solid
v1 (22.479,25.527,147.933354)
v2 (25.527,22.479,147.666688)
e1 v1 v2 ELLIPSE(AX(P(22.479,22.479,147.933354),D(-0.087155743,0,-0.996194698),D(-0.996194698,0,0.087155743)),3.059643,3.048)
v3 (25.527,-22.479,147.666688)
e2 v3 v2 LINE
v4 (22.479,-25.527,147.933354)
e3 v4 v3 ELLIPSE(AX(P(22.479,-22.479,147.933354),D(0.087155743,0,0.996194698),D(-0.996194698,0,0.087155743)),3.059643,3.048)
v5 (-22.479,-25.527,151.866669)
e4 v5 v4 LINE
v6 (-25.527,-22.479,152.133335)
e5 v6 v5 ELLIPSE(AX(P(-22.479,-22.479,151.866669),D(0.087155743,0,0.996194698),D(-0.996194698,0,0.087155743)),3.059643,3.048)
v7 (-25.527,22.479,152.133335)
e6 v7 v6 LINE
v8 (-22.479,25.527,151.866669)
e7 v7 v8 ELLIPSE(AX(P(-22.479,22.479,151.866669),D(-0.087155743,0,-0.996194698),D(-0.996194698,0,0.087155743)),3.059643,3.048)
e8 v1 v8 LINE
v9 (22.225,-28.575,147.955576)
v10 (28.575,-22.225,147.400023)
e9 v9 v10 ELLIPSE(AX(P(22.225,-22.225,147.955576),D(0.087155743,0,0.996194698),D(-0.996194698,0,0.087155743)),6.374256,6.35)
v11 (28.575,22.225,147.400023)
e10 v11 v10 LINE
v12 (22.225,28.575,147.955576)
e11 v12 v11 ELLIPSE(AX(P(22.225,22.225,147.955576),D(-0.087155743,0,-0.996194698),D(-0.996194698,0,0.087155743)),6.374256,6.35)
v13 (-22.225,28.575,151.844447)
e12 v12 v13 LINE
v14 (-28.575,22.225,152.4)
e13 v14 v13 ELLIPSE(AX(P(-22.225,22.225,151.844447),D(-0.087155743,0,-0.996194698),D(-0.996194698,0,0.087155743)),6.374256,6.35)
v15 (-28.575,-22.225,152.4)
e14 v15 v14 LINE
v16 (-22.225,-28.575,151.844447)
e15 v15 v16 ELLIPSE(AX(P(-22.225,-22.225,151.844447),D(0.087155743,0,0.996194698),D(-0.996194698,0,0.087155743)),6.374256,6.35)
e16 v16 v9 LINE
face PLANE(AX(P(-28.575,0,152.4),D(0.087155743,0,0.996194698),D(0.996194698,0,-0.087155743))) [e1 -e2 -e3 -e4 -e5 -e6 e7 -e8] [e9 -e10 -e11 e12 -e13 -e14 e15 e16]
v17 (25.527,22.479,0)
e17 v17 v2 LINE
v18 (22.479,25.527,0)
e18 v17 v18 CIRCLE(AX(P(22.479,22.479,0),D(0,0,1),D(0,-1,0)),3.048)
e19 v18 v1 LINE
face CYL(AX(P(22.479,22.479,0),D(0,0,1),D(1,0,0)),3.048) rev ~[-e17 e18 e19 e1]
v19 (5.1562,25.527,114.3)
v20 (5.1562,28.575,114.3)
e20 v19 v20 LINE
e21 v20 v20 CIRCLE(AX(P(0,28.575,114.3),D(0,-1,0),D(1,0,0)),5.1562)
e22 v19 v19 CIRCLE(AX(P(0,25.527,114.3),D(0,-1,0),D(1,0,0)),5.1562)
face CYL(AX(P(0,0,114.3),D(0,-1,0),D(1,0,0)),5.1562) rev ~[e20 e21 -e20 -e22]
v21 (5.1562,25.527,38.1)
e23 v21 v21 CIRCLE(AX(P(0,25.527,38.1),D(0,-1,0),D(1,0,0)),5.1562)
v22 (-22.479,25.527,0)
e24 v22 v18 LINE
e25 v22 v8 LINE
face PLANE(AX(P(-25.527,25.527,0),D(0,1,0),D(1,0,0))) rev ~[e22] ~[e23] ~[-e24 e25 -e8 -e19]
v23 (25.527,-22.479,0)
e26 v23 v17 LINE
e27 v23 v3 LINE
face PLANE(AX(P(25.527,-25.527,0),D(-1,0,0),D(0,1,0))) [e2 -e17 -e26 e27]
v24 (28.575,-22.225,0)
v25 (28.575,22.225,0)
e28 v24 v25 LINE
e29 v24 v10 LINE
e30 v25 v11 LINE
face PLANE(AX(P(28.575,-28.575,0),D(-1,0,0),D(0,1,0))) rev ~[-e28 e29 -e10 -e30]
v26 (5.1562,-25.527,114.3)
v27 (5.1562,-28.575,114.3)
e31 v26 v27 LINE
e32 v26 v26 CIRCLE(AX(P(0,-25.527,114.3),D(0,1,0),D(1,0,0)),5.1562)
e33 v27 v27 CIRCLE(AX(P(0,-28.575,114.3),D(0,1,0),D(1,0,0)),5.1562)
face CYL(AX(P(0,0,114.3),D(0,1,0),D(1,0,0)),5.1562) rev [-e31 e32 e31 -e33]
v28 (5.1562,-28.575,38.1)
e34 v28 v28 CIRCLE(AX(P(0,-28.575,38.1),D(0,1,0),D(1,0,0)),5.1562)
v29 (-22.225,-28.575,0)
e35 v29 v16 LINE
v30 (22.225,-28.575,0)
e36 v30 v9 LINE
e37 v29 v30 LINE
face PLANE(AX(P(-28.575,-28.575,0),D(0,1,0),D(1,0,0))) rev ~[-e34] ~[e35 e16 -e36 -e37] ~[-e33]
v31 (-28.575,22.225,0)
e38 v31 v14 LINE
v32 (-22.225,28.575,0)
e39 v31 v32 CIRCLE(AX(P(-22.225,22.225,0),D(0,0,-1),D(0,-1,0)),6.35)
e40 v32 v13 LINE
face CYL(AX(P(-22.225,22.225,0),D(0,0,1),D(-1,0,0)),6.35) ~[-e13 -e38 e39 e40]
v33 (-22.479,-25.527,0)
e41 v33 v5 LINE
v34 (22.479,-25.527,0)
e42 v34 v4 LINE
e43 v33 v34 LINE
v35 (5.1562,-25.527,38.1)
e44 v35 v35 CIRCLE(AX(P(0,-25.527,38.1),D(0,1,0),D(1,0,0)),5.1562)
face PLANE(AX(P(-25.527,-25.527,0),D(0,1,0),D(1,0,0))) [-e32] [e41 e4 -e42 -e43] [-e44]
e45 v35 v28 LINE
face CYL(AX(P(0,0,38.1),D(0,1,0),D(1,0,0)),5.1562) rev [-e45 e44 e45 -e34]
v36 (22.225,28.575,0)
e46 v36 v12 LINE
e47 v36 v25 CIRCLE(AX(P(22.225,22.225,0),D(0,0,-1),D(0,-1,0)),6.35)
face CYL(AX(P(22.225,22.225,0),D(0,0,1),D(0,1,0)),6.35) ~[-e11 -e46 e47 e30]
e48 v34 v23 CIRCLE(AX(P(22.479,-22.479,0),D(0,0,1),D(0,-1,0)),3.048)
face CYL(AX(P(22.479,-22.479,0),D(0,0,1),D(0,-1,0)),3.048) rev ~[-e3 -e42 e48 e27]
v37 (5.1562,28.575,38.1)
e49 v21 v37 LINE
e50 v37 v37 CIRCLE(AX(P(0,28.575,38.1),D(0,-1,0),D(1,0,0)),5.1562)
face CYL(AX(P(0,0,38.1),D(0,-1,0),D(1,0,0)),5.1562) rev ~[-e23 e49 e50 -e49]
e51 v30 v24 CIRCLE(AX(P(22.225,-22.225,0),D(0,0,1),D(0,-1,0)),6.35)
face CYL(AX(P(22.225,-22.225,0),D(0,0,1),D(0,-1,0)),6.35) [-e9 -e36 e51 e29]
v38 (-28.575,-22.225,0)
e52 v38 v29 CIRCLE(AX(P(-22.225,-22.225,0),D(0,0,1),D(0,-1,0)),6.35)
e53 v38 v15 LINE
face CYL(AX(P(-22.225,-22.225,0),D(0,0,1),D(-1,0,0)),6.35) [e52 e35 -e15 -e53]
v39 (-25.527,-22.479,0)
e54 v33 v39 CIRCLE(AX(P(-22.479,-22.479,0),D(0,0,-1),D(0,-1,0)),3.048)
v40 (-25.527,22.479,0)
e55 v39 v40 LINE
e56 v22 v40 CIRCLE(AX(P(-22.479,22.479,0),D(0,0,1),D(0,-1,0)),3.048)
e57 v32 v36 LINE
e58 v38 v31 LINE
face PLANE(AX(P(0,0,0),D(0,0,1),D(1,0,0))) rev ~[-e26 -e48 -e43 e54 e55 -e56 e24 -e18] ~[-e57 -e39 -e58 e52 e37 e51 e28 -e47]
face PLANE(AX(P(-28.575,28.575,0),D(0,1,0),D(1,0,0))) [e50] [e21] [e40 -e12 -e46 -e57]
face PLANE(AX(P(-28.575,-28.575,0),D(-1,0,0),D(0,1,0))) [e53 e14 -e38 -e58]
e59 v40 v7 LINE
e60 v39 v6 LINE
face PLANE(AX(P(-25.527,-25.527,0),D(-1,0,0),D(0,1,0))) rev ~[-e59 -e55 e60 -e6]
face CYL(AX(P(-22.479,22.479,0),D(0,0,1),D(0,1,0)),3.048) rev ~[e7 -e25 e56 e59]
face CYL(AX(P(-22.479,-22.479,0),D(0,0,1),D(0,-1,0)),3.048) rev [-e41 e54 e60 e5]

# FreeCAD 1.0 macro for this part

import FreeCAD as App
import Part
import Sketcher
from FreeCAD import Vector
Q = App.Units.Quantity


def edges_at(feature, points):
    """Names of the edges that pass closest to the given points."""
    edges = feature.Shape.Edges
    near = lambda p: min(range(len(edges)), key=lambda i: edges[i].distToShape(Part.Vertex(*p))[0])
    return sorted({f"Edge{near(p) + 1}" for p in points})


def add_polygon(sketch, points):
    """Adds a closed chain of lines whose ends are joined by coincident constraints."""
    first, n = sketch.GeometryCount, len(points)
    for a, b in zip(points, points[1:] + points[:1]):
        sketch.addGeometry(Part.LineSegment(App.Vector(*a, 0), App.Vector(*b, 0)), False)
    for i in range(n):
        sketch.addConstraint(Sketcher.Constraint("Coincident", first + i, 2, first + (i + 1) % n, 1))

doc = App.newDocument("Part")
body = doc.addObject("PartDesign::Body", "Body")

# Sketch on XY plane
sketch1 = doc.addObject("Sketcher::SketchObject", "Sketch")
body.addObject(sketch1)
sketch1.AttachmentSupport = (doc.XY_Plane, [""])
sketch1.MapMode = "FlatFace"
add_polygon(sketch1, [(-29, 29), (-29, -29), (29, -29), (29, 29)])  # lines 0-3
add_polygon(sketch1, [(26, -26), (-26, -26), (-26, 26), (26, 26)])  # lines 4-7
sketch1.addConstraint(Sketcher.Constraint("Vertical", 0))
sketch1.addConstraint(Sketcher.Constraint("Horizontal", 1))
sketch1.addConstraint(Sketcher.Constraint("Vertical", 2))
sketch1.addConstraint(Sketcher.Constraint("Horizontal", 3))
sketch1.addConstraint(Sketcher.Constraint("Horizontal", 4))
sketch1.addConstraint(Sketcher.Constraint("Vertical", 5))
sketch1.addConstraint(Sketcher.Constraint("Horizontal", 6))
sketch1.addConstraint(Sketcher.Constraint("Vertical", 7))
sketch1.addConstraint(Sketcher.Constraint("Symmetric", 0, 2, 2, 2, -1, 1))
sketch1.addConstraint(Sketcher.Constraint("Symmetric", 4, 2, 6, 2, -1, 1))
sketch1.addConstraint(Sketcher.Constraint("Equal", 3, 0))
sketch1.addConstraint(Sketcher.Constraint("Equal", 6, 5))
sketch1.addConstraint(Sketcher.Constraint("DistanceX", 1, 1, 1, 2, Q("2.25 in")))
sketch1.addConstraint(Sketcher.Constraint("DistanceX", 4, 2, 4, 1, Q("2.01 in")))
pad1 = doc.addObject("PartDesign::Pad", "Pad")
body.addObject(pad1)
pad1.Profile = sketch1
pad1.Length = Q("6 in")
doc.recompute()

fillet = doc.addObject("PartDesign::Fillet", "Fillet")
body.addObject(fillet)
fillet.Base = (pad1, edges_at(pad1, [
    (25.527, 25.527, 76.2),
    (-25.527, 25.527, 76.2),
    (-25.527, -25.527, 76.2),
    (25.527, -25.527, 76.2),
]))
fillet.Radius = Q("0.12 in")
doc.recompute()

fillet2 = doc.addObject("PartDesign::Fillet", "Fillet001")
body.addObject(fillet2)
fillet2.Base = (fillet, edges_at(fillet, [
    (-28.575, 28.575, 76.2),
    (-28.575, -28.575, 76.2),
    (28.575, -28.575, 76.2),
    (28.575, 28.575, 76.2),
]))
fillet2.Radius = Q("0.25 in")

# Sketch on XZ plane
sketch2 = doc.addObject("Sketcher::SketchObject", "Sketch001")
body.addObject(sketch2)
sketch2.AttachmentSupport = (doc.XZ_Plane, [""])
sketch2.MapMode = "FlatFace"
add_polygon(sketch2, [(-28.6, 152.4), (28.6, 147.4), (28.6, 152.4)])  # lines 0-2
sketch2.addConstraint(Sketcher.Constraint("Vertical", 1))
sketch2.addConstraint(Sketcher.Constraint("Horizontal", 2))
sketch2.addConstraint(Sketcher.Constraint("DistanceY", -1, 1, 1, 2, Q("6 in")))
sketch2.addConstraint(Sketcher.Constraint("Angle", 0, Q("-5 deg")))
sketch2.addConstraint(Sketcher.Constraint("DistanceX", 2, 2, 2, 1, Q("2.25 in")))
sketch2.addConstraint(Sketcher.Constraint("DistanceX", -1, 1, 0, 2, Q("1.125 in")))
pocket1 = doc.addObject("PartDesign::Pocket", "Pocket")
body.addObject(pocket1)
pocket1.Profile = sketch2
pocket1.Type = "ThroughAll"
pocket1.Midplane = True

# Sketch on XZ plane
sketch3 = doc.addObject("Sketcher::SketchObject", "Sketch002")
body.addObject(sketch3)
sketch3.AttachmentSupport = (doc.XZ_Plane, [""])
sketch3.MapMode = "FlatFace"
sketch3.addGeometry(Part.Circle(Vector(0, 114, 0), Vector(0, 0, 1), 5), False)
sketch3.addGeometry(Part.Circle(Vector(0, 38, 0), Vector(0, 0, 1), 5), False)
sketch3.addConstraint(Sketcher.Constraint("Equal", 0, 1))
sketch3.addConstraint(Sketcher.Constraint("PointOnObject", 0, 3, -2))
sketch3.addConstraint(Sketcher.Constraint("PointOnObject", 1, 3, -2))
sketch3.addConstraint(Sketcher.Constraint("Diameter", 0, Q("0.406 in")))
sketch3.addConstraint(Sketcher.Constraint("DistanceY", 1, 3, 0, 3, Q("3 in")))
sketch3.addConstraint(Sketcher.Constraint("DistanceY", -1, 1, 0, 3, Q("4.5 in")))
pocket2 = doc.addObject("PartDesign::Pocket", "Pocket001")
body.addObject(pocket2)
pocket2.Profile = sketch3
pocket2.Type = "ThroughAll"
pocket2.Midplane = True

doc.recompute()
